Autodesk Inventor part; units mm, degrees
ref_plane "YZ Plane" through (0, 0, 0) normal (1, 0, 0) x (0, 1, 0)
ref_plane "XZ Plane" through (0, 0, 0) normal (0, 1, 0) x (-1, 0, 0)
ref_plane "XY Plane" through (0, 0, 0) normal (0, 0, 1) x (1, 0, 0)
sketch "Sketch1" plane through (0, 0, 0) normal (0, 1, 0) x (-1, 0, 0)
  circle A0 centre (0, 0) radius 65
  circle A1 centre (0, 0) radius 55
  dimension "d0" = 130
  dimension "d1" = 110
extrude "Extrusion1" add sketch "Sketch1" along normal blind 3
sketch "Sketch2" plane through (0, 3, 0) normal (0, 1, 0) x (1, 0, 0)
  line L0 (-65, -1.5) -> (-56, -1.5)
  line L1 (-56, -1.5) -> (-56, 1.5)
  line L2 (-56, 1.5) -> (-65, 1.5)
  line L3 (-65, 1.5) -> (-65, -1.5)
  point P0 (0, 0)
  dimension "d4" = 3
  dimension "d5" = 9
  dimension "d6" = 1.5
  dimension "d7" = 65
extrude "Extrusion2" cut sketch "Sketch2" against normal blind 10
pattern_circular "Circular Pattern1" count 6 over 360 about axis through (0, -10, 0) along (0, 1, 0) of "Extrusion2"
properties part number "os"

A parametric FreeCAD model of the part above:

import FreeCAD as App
import Part
import Sketcher

V = App.Vector


def add_polygon(sketch, points):
    """Adds a closed chain of lines whose ends are joined by coincident constraints."""
    first, n = sketch.GeometryCount, len(points)
    for a, b in zip(points, points[1:] + points[:1]):
        sketch.addGeometry(Part.LineSegment(App.Vector(*a, 0), App.Vector(*b, 0)), False)
    for i in range(n):
        sketch.addConstraint(Sketcher.Constraint("Coincident", first + i, 2, first + (i + 1) % n, 1))

doc = App.newDocument("Part")
body = doc.addObject("PartDesign::Body", "Body")

sketch1 = body.newObject("Sketcher::SketchObject", "Sketch")
sketch1.AttachmentSupport = (doc.getObject("XZ_Plane"), [""])
sketch1.MapMode = "FlatFace"
sketch1.addGeometry([
    Part.Circle(V(0, 0, 0), V(0, 0, 1), 65),
    Part.Circle(V(0, 0, 0), V(0, 0, 1), 55),
], False)
sketch1.addConstraint([
    Sketcher.Constraint("Coincident", 0, 3, -1, 1),
    Sketcher.Constraint("Coincident", 1, 3, -1, 1),
    Sketcher.Constraint("Diameter", 0, 130.0),
    Sketcher.Constraint("Diameter", 1, 110.0),
])
pad1 = body.newObject("PartDesign::Pad", "Pad")
pad1.Profile = sketch1
pad1.Length = 3
pad1.Reversed = True

sketch2 = body.newObject("Sketcher::SketchObject", "Sketch001")
sketch2.AttachmentSupport = (doc.getObject("XZ_Plane"), [""])
sketch2.MapMode = "FlatFace"
sketch2.AttachmentOffset = App.Placement(V(0, 0, -3), App.Rotation())
add_polygon(sketch2, [(-65, -1.5), (-65, 1.5), (-56, 1.5), (-56, -1.5)])
sketch2.addConstraint([
    Sketcher.Constraint("Vertical", 0),
    Sketcher.Constraint("Horizontal", 1),
    Sketcher.Constraint("Vertical", 2),
    Sketcher.Constraint("Horizontal", 3),
    Sketcher.Constraint("DistanceX", 1, 1, 1, 2, 9.0),
    Sketcher.Constraint("DistanceY", 0, 1, 0, 2, 3.0),
    Sketcher.Constraint("DistanceX", 0, 2, -1, 1, 65.0),
    Sketcher.Constraint("DistanceY", -1, 1, 0, 2, 1.5),
])
pocket1 = body.newObject("PartDesign::Pocket", "Pocket")
pocket1.Profile = sketch2
pocket1.Length = 10
pocket1.Reversed = True
doc.recompute()

polarpattern = body.newObject("PartDesign::PolarPattern", "PolarPattern")
polarpattern.Originals = [pocket1]
polarpattern.Axis = (doc.getObject("Y_Axis"), [""])
polarpattern.Angle = 360
polarpattern.Occurrences = 6
body.Tip = polarpattern

doc.recompute()
